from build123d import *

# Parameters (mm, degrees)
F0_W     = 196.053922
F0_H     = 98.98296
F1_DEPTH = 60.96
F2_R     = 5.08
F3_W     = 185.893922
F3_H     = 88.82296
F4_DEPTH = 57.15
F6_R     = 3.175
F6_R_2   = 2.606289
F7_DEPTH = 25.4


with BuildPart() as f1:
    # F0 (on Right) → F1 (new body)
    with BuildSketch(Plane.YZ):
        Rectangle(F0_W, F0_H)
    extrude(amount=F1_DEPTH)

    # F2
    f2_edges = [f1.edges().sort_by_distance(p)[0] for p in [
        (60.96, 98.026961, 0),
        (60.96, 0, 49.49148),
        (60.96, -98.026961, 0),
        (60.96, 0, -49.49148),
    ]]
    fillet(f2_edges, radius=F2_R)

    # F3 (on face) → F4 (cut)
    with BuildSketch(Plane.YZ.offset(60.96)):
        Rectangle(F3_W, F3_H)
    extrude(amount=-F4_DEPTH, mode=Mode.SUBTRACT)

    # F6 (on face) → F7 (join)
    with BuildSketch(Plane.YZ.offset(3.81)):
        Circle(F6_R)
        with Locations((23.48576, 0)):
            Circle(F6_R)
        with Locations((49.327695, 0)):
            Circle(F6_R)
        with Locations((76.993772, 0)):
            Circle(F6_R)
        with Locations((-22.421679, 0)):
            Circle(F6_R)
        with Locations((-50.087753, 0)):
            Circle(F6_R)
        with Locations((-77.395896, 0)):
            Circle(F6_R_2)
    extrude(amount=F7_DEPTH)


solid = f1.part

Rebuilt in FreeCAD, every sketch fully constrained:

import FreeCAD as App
import Part
import Sketcher
Q = App.Units.Quantity


def edges_at(feature, points):
    """Names of the edges that pass closest to the given points."""
    edges = feature.Shape.Edges
    near = lambda p: min(range(len(edges)), key=lambda i: edges[i].distToShape(Part.Vertex(*p))[0])
    return sorted({f"Edge{near(p) + 1}" for p in points})

doc = App.newDocument("Part")
body = doc.addObject("PartDesign::Body", "Body")

# Sketch on YZ plane
sketch1 = doc.addObject("Sketcher::SketchObject", "Sketch")
body.addObject(sketch1)
sketch1.AttachmentSupport = (doc.YZ_Plane, [""])
sketch1.MapMode = "FlatFace"
sketch1.addGeometry([
    Part.LineSegment(App.Vector(-98, 49, 0), App.Vector(-98, -49, 0)),
    Part.LineSegment(App.Vector(-98, -49, 0), App.Vector(98, -49, 0)),
    Part.LineSegment(App.Vector(98, -49, 0), App.Vector(98, 49, 0)),
    Part.LineSegment(App.Vector(98, 49, 0), App.Vector(-98, 49, 0)),
], False)
sketch1.addConstraint([
    Sketcher.Constraint("Coincident", 0, 2, 1, 1),
    Sketcher.Constraint("Coincident", 1, 2, 2, 1),
    Sketcher.Constraint("Coincident", 2, 2, 3, 1),
    Sketcher.Constraint("Coincident", 3, 2, 0, 1),
    Sketcher.Constraint("Vertical", 0),
    Sketcher.Constraint("Horizontal", 1),
    Sketcher.Constraint("Vertical", 2),
    Sketcher.Constraint("Horizontal", 3),
    Sketcher.Constraint("Symmetric", 0, 2, 2, 2, -1, 1),
    Sketcher.Constraint("DistanceX", 1, 1, 1, 2, Q("196.053922 mm")),
    Sketcher.Constraint("DistanceY", 0, 2, 0, 1, Q("98.98296 mm")),
])
pad1 = doc.addObject("PartDesign::Pad", "Pad")
body.addObject(pad1)
pad1.Profile = sketch1
pad1.Length = Q("2.4 in")
doc.recompute()

fillet = doc.addObject("PartDesign::Fillet", "Fillet")
body.addObject(fillet)
fillet.Base = (pad1, edges_at(pad1, [
    (60.96, 98.027, 0),
    (60.96, 0, 49.491),
    (60.96, -98.027, 0),
    (60.96, 0, -49.491),
]))
fillet.Radius = Q("0.2 in")

# Sketch on YZ plane
sketch2 = doc.addObject("Sketcher::SketchObject", "Sketch001")
body.addObject(sketch2)
sketch2.AttachmentSupport = (doc.YZ_Plane, [""])
sketch2.MapMode = "FlatFace"
sketch2.AttachmentOffset = App.Placement(App.Vector(0, 0, 2.4 * 25.4), App.Rotation())
sketch2.addGeometry([
    Part.LineSegment(App.Vector(-93, 44, 0), App.Vector(-93, -44, 0)),
    Part.LineSegment(App.Vector(-93, -44, 0), App.Vector(93, -44, 0)),
    Part.LineSegment(App.Vector(93, -44, 0), App.Vector(93, 44, 0)),
    Part.LineSegment(App.Vector(93, 44, 0), App.Vector(-93, 44, 0)),
], False)
sketch2.addConstraint([
    Sketcher.Constraint("Coincident", 0, 2, 1, 1),
    Sketcher.Constraint("Coincident", 1, 2, 2, 1),
    Sketcher.Constraint("Coincident", 2, 2, 3, 1),
    Sketcher.Constraint("Coincident", 3, 2, 0, 1),
    Sketcher.Constraint("Vertical", 0),
    Sketcher.Constraint("Horizontal", 1),
    Sketcher.Constraint("Vertical", 2),
    Sketcher.Constraint("Horizontal", 3),
    Sketcher.Constraint("Symmetric", 0, 2, 2, 2, -1, 1),
    Sketcher.Constraint("DistanceX", 1, 1, 1, 2, Q("185.893922 mm")),
    Sketcher.Constraint("DistanceY", 0, 2, 0, 1, Q("88.82296 mm")),
])
pocket1 = doc.addObject("PartDesign::Pocket", "Pocket")
body.addObject(pocket1)
pocket1.Profile = sketch2
pocket1.Length = Q("2.25 in")

# Sketch on YZ plane
sketch3 = doc.addObject("Sketcher::SketchObject", "Sketch002")
body.addObject(sketch3)
sketch3.AttachmentSupport = (doc.YZ_Plane, [""])
sketch3.MapMode = "FlatFace"
sketch3.AttachmentOffset = App.Placement(App.Vector(0, 0, 0.15 * 25.4), App.Rotation())
sketch3.addGeometry([
    Part.Circle(App.Vector(0, 0, 0), App.Vector(0, 0, 1), 3.2),  # 0
    Part.Circle(App.Vector(23.5, 0, 0), App.Vector(0, 0, 1), 3.2),  # 1
    Part.Circle(App.Vector(49.3, 0, 0), App.Vector(0, 0, 1), 3.2),  # 2
    Part.Circle(App.Vector(77, 0, 0), App.Vector(0, 0, 1), 3.2),  # 3
    Part.Circle(App.Vector(-22.4, 0, 0), App.Vector(0, 0, 1), 3.2),  # 4
    Part.Circle(App.Vector(-50.1, 0, 0), App.Vector(0, 0, 1), 3.2),  # 5
    Part.Circle(App.Vector(-77.4, 0, 0), App.Vector(0, 0, 1), 2.6),  # 6
], False)
sketch3.addConstraint([
    Sketcher.Constraint("Coincident", 0, 3, -1, 1),
    Sketcher.Constraint("Equal", 0, 1),
    Sketcher.Constraint("Equal", 1, 2),
    Sketcher.Constraint("Equal", 2, 3),
    Sketcher.Constraint("Equal", 3, 4),
    Sketcher.Constraint("Equal", 4, 5),
    Sketcher.Constraint("PointOnObject", 1, 3, -1),
    Sketcher.Constraint("PointOnObject", 2, 3, -1),
    Sketcher.Constraint("PointOnObject", 3, 3, -1),
    Sketcher.Constraint("PointOnObject", 4, 3, -1),
    Sketcher.Constraint("PointOnObject", 5, 3, -1),
    Sketcher.Constraint("PointOnObject", 6, 3, -1),
    Sketcher.Constraint("Diameter", 0, Q("0.25 in")),
    Sketcher.Constraint("Diameter", 6, Q("5.212578 mm")),
    Sketcher.Constraint("DistanceX", -1, 1, 1, 3, Q("23.48576 mm")),
    Sketcher.Constraint("DistanceX", 4, 3, -1, 1, Q("22.421679 mm")),
    Sketcher.Constraint("DistanceX", 4, 3, 3, 3, Q("99.415451 mm")),
    Sketcher.Constraint("DistanceX", 6, 3, 2, 3, Q("126.723591 mm")),
    Sketcher.Constraint("DistanceX", -1, 1, 2, 3, Q("49.327695 mm")),
    Sketcher.Constraint("DistanceX", 5, 3, -1, 1, Q("50.087753 mm")),
])
pad2 = doc.addObject("PartDesign::Pad", "Pad001")
body.addObject(pad2)
pad2.Profile = sketch3
pad2.Length = Q("1 in")

doc.recompute()
